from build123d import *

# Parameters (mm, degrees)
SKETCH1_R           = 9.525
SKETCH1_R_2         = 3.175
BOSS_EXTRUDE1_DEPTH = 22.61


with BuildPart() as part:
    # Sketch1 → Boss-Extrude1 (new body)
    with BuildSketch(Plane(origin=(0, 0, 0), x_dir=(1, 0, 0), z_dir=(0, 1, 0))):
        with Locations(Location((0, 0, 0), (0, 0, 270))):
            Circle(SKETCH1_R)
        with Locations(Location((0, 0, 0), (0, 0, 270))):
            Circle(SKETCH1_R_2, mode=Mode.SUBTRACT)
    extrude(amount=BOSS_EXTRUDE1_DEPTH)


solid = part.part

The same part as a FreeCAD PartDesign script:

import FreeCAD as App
import Part
import Sketcher
from FreeCAD import Vector
Q = App.Units.Quantity

doc = App.newDocument("Part")
body = doc.addObject("PartDesign::Body", "Body")

# Sketch on XZ plane
sketch1 = body.newObject("Sketcher::SketchObject", "Sketch")
sketch1.AttachmentSupport = (doc.getObject("XZ_Plane"), [""])
sketch1.MapMode = "FlatFace"
sketch1.addGeometry([
    Part.Circle(Vector(0, 0, 0), Vector(0, 0, 1), 9.5),
    Part.Circle(Vector(0, 0, 0), Vector(0, 0, 1), 3.2),
], False)
sketch1.addConstraint([
    Sketcher.Constraint("Coincident", 0, 3, -1, 1),
    Sketcher.Constraint("Coincident", 1, 3, -1, 1),
    Sketcher.Constraint("Diameter", 0, Q("0.75 in")),
    Sketcher.Constraint("Diameter", 1, Q("0.25 in")),
])
pad1 = body.newObject("PartDesign::Pad", "Pad")
pad1.Profile = sketch1
pad1.Length = 22.61
pad1.Reversed = True

doc.recompute()
